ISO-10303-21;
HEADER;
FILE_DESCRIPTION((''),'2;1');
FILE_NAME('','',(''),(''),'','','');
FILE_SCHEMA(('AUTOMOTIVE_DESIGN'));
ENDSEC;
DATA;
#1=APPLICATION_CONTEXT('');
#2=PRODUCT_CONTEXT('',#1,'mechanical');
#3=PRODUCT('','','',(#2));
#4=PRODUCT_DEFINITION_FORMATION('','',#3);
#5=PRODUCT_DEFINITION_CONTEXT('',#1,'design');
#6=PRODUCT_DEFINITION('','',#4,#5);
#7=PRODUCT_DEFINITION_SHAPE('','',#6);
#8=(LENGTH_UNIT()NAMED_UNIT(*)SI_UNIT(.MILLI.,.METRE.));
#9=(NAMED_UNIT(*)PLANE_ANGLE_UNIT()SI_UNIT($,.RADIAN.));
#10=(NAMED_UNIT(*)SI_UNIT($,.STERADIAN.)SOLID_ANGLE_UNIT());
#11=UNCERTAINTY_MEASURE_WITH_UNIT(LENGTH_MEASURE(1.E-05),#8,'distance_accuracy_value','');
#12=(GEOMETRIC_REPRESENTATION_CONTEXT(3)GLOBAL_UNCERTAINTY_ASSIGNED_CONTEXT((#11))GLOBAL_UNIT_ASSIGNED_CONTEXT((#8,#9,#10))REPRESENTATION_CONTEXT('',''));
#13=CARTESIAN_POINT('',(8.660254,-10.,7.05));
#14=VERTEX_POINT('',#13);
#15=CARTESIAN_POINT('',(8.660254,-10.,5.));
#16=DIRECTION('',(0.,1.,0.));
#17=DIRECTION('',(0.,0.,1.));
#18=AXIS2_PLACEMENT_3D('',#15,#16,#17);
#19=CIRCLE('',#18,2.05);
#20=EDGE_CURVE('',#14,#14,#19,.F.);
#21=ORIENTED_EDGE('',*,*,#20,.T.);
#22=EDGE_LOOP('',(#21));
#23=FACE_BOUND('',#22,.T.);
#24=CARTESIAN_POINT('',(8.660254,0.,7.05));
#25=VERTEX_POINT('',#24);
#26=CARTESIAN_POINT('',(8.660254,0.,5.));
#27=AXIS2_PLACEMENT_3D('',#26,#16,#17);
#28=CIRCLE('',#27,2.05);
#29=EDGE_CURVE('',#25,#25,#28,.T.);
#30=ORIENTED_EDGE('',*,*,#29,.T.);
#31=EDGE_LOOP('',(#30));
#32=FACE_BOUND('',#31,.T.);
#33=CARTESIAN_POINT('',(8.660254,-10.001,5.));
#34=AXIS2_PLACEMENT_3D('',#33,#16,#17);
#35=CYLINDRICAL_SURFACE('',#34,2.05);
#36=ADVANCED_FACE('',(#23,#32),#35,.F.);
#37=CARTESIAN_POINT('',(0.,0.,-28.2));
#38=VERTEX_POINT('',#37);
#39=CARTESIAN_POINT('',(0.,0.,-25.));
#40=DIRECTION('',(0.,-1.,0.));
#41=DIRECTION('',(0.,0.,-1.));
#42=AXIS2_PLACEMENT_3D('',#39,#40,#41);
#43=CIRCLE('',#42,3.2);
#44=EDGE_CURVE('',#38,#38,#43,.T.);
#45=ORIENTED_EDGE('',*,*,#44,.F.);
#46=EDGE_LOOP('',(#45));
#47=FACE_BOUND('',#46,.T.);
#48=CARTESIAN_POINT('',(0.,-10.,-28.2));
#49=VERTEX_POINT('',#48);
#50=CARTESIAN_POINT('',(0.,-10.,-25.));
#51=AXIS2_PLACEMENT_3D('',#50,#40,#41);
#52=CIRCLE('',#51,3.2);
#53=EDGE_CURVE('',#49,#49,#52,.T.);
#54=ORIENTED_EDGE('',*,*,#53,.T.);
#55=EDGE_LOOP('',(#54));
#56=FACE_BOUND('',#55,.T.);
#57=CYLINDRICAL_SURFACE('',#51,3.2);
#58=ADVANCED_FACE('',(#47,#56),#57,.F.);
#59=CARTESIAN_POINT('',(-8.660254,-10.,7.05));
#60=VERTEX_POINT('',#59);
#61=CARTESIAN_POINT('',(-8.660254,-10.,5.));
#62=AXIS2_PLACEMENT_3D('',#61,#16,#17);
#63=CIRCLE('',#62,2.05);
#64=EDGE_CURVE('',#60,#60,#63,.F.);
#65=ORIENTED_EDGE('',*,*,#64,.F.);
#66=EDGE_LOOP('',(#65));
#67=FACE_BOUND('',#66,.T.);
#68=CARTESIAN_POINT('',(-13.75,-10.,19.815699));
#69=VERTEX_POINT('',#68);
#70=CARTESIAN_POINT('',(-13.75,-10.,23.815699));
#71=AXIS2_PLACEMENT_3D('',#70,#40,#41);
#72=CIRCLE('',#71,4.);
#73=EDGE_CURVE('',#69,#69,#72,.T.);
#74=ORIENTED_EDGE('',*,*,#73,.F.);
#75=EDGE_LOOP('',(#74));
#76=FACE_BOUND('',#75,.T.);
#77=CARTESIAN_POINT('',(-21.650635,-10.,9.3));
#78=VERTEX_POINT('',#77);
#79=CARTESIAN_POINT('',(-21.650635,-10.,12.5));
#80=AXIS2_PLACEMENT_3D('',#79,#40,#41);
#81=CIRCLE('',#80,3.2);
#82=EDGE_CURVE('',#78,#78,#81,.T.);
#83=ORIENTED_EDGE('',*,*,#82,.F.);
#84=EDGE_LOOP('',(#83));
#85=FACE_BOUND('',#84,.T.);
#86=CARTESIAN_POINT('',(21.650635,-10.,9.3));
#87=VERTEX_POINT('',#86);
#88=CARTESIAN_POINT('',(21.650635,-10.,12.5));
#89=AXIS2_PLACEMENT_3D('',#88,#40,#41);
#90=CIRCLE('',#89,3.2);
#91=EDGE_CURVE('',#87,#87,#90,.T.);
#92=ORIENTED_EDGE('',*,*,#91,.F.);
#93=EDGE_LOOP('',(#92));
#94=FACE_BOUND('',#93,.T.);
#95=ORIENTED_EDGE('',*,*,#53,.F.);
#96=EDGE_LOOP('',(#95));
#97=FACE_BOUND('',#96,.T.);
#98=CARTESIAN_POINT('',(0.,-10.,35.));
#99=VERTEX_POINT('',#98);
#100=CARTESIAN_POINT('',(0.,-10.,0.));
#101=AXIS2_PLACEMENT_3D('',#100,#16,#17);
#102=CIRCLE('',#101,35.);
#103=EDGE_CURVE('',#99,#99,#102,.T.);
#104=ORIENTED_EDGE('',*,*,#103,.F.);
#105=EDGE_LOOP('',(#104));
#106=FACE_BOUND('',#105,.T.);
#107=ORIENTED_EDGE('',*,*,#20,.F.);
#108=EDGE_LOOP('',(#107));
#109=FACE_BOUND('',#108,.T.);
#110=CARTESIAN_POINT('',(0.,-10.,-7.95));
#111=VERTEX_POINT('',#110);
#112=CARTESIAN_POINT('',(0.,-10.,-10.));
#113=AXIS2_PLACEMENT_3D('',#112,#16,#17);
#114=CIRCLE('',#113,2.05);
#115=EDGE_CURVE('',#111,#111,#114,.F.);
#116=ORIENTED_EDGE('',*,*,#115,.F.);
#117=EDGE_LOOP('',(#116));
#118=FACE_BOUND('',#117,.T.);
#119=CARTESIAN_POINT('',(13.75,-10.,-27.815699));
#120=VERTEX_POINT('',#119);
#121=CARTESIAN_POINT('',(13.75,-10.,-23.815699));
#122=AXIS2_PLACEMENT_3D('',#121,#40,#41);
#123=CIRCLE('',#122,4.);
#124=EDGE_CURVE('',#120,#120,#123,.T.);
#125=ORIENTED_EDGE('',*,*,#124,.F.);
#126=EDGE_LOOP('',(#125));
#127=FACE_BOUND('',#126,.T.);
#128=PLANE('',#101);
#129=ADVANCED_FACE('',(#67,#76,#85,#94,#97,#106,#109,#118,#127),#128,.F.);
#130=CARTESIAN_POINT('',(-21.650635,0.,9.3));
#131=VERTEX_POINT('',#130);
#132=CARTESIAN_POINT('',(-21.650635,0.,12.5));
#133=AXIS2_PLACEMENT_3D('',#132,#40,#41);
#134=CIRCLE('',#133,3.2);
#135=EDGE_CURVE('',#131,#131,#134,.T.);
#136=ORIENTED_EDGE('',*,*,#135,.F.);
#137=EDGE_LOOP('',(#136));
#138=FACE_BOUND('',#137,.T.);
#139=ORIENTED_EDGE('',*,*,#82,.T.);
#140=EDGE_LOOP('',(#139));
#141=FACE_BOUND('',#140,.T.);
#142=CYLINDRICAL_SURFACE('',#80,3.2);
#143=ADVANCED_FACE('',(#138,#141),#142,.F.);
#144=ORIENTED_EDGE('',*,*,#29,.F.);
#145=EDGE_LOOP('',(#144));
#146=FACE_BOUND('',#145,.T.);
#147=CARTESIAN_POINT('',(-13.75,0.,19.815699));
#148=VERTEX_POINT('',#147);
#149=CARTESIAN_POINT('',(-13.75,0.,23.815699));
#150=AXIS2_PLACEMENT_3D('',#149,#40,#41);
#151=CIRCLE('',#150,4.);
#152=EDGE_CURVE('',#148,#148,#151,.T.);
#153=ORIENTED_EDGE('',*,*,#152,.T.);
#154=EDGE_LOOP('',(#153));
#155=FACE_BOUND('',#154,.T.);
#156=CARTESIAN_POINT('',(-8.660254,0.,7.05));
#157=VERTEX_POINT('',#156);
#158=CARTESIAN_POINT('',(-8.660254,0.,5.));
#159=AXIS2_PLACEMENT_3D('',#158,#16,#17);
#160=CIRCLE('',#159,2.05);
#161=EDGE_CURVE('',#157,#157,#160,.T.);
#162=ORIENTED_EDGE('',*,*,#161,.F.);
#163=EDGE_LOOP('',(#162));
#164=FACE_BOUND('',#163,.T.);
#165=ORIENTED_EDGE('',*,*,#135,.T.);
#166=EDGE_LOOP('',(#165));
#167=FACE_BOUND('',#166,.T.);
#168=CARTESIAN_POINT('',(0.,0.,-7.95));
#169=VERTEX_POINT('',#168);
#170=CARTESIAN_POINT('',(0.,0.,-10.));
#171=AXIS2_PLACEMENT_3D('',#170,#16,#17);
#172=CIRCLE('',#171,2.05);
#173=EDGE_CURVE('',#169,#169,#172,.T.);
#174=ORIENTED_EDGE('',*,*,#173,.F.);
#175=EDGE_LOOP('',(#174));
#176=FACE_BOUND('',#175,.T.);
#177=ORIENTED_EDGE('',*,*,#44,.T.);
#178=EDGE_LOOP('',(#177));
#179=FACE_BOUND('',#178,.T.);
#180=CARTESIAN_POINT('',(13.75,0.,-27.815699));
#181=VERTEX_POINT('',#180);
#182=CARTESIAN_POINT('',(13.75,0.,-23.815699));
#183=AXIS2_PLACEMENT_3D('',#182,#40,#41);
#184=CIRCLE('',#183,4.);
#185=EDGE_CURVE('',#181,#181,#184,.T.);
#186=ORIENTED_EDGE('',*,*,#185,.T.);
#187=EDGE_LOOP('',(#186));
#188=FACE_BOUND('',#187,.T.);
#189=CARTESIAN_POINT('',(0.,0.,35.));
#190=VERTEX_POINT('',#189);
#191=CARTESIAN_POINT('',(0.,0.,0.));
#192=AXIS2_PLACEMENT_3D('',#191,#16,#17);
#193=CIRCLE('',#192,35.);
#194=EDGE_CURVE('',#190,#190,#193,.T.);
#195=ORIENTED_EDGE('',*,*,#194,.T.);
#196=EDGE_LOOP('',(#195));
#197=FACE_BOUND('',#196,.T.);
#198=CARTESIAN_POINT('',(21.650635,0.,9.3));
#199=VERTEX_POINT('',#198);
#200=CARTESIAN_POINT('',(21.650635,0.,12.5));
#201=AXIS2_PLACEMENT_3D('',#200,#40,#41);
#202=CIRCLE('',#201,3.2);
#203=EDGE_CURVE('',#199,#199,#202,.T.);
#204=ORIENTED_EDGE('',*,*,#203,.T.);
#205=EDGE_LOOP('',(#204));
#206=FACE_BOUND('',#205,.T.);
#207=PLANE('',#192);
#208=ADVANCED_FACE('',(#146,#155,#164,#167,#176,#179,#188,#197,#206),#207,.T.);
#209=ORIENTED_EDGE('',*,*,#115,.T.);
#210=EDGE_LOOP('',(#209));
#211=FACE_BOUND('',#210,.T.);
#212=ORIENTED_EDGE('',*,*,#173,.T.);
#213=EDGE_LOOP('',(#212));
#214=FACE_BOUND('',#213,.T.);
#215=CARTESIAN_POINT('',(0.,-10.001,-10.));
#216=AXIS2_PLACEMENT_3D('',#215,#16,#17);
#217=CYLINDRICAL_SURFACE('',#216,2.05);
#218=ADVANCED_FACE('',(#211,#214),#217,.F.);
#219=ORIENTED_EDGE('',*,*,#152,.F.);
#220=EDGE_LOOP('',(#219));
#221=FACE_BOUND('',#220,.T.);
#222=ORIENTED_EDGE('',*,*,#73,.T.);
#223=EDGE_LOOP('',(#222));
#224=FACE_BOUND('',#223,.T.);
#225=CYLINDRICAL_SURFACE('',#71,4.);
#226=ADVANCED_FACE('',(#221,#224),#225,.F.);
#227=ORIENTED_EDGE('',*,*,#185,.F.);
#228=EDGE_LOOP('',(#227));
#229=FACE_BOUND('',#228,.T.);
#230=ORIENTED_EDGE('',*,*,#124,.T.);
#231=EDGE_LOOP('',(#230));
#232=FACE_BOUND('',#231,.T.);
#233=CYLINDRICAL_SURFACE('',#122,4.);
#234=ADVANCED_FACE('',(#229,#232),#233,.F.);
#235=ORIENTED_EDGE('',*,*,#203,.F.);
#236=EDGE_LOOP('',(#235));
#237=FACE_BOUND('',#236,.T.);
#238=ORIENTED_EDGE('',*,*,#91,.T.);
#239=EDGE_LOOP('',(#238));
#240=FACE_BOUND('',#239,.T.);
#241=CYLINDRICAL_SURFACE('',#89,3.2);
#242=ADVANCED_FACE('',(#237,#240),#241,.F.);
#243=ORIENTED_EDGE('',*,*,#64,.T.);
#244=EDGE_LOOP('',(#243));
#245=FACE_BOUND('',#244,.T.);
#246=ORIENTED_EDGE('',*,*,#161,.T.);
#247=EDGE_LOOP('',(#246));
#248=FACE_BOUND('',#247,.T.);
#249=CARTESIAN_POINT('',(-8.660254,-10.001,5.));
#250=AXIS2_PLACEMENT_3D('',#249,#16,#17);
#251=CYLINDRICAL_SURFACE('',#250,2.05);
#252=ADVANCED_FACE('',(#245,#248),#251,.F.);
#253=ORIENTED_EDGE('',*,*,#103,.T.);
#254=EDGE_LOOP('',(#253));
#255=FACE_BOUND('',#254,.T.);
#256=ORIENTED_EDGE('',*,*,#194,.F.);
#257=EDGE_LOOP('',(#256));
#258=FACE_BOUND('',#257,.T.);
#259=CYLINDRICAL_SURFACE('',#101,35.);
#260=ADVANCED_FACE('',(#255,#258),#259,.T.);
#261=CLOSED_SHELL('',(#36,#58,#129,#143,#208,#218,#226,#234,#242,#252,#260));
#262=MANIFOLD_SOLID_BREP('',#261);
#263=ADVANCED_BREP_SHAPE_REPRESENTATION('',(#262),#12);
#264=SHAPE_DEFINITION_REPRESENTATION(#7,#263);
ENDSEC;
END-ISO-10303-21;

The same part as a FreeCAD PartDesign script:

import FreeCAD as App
import Part
import Sketcher
from FreeCAD import Vector

doc = App.newDocument("Part")
body = doc.addObject("PartDesign::Body", "Body")

# Sketch on XZ plane
sketch1 = body.newObject("Sketcher::SketchObject", "Sketch")
sketch1.AttachmentSupport = (doc.getObject("XZ_Plane"), [""])
sketch1.MapMode = "FlatFace"
sketch1.addGeometry(Part.Circle(Vector(0, 0, 0), Vector(0, 0, 1), 35), False)
sketch1.addConstraint(Sketcher.Constraint("Coincident", 0, 3, -1, 1))
sketch1.addConstraint(Sketcher.Constraint("Diameter", 0, 70.0))
pad1 = body.newObject("PartDesign::Pad", "Pad")
pad1.Profile = sketch1
pad1.Length = 10

# Sketch on XZ plane
sketch2 = body.newObject("Sketcher::SketchObject", "Sketch001")
sketch2.AttachmentSupport = (doc.getObject("XZ_Plane"), [""])
sketch2.MapMode = "FlatFace"
sketch2.addGeometry(Part.Circle(Vector(8.7, 5, 0), Vector(0, 0, 1), 2), False)
sketch2.addConstraint(Sketcher.Constraint("Diameter", 0, 4.1))
sketch2.addConstraint(Sketcher.Constraint("DistanceY", -1, 1, 0, 3, 5.0))
sketch2.addConstraint(Sketcher.Constraint("DistanceX", -1, 1, 0, 3, 8.660254))
pocket1 = body.newObject("PartDesign::Pocket", "Pocket")
pocket1.Profile = sketch2
pocket1.Type = "UpToFirst"
pocket1.Reversed = True

# Sketch on XZ plane
sketch3 = body.newObject("Sketcher::SketchObject", "Sketch002")
sketch3.AttachmentSupport = (doc.getObject("XZ_Plane"), [""])
sketch3.MapMode = "FlatFace"
sketch3.addGeometry(Part.Circle(Vector(0, -10, 0), Vector(0, 0, 1), 2), False)
sketch3.addConstraint(Sketcher.Constraint("PointOnObject", 0, 3, -2))
sketch3.addConstraint(Sketcher.Constraint("Diameter", 0, 4.1))
sketch3.addConstraint(Sketcher.Constraint("DistanceY", 0, 3, -1, 1, 10.0))
pocket2 = body.newObject("PartDesign::Pocket", "Pocket001")
pocket2.Profile = sketch3
pocket2.Type = "UpToFirst"
pocket2.Reversed = True

# Sketch on XZ plane
sketch4 = body.newObject("Sketcher::SketchObject", "Sketch003")
sketch4.AttachmentSupport = (doc.getObject("XZ_Plane"), [""])
sketch4.MapMode = "FlatFace"
sketch4.addGeometry(Part.Circle(Vector(-8.7, 5, 0), Vector(0, 0, 1), 2), False)
sketch4.addConstraint(Sketcher.Constraint("Diameter", 0, 4.1))
sketch4.addConstraint(Sketcher.Constraint("DistanceY", -1, 1, 0, 3, 5.0))
sketch4.addConstraint(Sketcher.Constraint("DistanceX", 0, 3, -1, 1, 8.660254))
pocket3 = body.newObject("PartDesign::Pocket", "Pocket002")
pocket3.Profile = sketch4
pocket3.Type = "UpToFirst"
pocket3.Reversed = True

# Sketch on XZ plane
sketch5 = body.newObject("Sketcher::SketchObject", "Sketch004")
sketch5.AttachmentSupport = (doc.getObject("XZ_Plane"), [""])
sketch5.MapMode = "FlatFace"
sketch5.AttachmentOffset = App.Placement(Vector(0, 0, 10), App.Rotation())
sketch5.addGeometry(Part.Circle(Vector(13.8, -23.8, 0), Vector(0, 0, 1), 4), False)
sketch5.addGeometry(Part.Circle(Vector(-13.8, 23.8, 0), Vector(0, 0, 1), 4), False)
sketch5.addConstraint(Sketcher.Constraint("Equal", 0, 1))
sketch5.addConstraint(Sketcher.Constraint("Symmetric", 0, 3, 1, 3, -1, 1))
sketch5.addConstraint(Sketcher.Constraint("Diameter", 0, 8.0))
sketch5.addConstraint(Sketcher.Constraint("DistanceX", 1, 3, 0, 3, 27.5))
sketch5.addConstraint(Sketcher.Constraint("DistanceY", 0, 3, -1, 1, 23.815699))
doc.recompute()
hole = body.newObject("PartDesign::Hole", "Hole")
hole.Profile = sketch5
hole.ThreadType = "None"
hole.Diameter = 8
hole.DepthType = "ThroughAll"

# Sketch on XZ plane
sketch6 = body.newObject("Sketcher::SketchObject", "Sketch005")
sketch6.AttachmentSupport = (doc.getObject("XZ_Plane"), [""])
sketch6.MapMode = "FlatFace"
sketch6.AttachmentOffset = App.Placement(Vector(0, 0, 10), App.Rotation())
sketch6.addGeometry(Part.Circle(Vector(21.7, 12.5, 0), Vector(0, 0, 1), 3.2), False)
sketch6.addGeometry(Part.Circle(Vector(-21.7, 12.5, 0), Vector(0, 0, 1), 3.2), False)
sketch6.addGeometry(Part.Circle(Vector(0, -25, 0), Vector(0, 0, 1), 3.2), False)
sketch6.addConstraint(Sketcher.Constraint("Equal", 0, 1))
sketch6.addConstraint(Sketcher.Constraint("Equal", 1, 2))
sketch6.addConstraint(Sketcher.Constraint("Symmetric", 0, 3, 1, 3, -2))
sketch6.addConstraint(Sketcher.Constraint("PointOnObject", 2, 3, -2))
sketch6.addConstraint(Sketcher.Constraint("Diameter", 0, 6.4))
sketch6.addConstraint(Sketcher.Constraint("DistanceY", 2, 3, -1, 1, 25.0))
sketch6.addConstraint(Sketcher.Constraint("DistanceY", -1, 1, 0, 3, 12.5))
sketch6.addConstraint(Sketcher.Constraint("DistanceX", 1, 3, 0, 3, 43.30127))
doc.recompute()
hole2 = body.newObject("PartDesign::Hole", "Hole001")
hole2.Profile = sketch6
hole2.ThreadType = "None"
hole2.Diameter = 6.4
hole2.DepthType = "ThroughAll"

doc.recompute()
